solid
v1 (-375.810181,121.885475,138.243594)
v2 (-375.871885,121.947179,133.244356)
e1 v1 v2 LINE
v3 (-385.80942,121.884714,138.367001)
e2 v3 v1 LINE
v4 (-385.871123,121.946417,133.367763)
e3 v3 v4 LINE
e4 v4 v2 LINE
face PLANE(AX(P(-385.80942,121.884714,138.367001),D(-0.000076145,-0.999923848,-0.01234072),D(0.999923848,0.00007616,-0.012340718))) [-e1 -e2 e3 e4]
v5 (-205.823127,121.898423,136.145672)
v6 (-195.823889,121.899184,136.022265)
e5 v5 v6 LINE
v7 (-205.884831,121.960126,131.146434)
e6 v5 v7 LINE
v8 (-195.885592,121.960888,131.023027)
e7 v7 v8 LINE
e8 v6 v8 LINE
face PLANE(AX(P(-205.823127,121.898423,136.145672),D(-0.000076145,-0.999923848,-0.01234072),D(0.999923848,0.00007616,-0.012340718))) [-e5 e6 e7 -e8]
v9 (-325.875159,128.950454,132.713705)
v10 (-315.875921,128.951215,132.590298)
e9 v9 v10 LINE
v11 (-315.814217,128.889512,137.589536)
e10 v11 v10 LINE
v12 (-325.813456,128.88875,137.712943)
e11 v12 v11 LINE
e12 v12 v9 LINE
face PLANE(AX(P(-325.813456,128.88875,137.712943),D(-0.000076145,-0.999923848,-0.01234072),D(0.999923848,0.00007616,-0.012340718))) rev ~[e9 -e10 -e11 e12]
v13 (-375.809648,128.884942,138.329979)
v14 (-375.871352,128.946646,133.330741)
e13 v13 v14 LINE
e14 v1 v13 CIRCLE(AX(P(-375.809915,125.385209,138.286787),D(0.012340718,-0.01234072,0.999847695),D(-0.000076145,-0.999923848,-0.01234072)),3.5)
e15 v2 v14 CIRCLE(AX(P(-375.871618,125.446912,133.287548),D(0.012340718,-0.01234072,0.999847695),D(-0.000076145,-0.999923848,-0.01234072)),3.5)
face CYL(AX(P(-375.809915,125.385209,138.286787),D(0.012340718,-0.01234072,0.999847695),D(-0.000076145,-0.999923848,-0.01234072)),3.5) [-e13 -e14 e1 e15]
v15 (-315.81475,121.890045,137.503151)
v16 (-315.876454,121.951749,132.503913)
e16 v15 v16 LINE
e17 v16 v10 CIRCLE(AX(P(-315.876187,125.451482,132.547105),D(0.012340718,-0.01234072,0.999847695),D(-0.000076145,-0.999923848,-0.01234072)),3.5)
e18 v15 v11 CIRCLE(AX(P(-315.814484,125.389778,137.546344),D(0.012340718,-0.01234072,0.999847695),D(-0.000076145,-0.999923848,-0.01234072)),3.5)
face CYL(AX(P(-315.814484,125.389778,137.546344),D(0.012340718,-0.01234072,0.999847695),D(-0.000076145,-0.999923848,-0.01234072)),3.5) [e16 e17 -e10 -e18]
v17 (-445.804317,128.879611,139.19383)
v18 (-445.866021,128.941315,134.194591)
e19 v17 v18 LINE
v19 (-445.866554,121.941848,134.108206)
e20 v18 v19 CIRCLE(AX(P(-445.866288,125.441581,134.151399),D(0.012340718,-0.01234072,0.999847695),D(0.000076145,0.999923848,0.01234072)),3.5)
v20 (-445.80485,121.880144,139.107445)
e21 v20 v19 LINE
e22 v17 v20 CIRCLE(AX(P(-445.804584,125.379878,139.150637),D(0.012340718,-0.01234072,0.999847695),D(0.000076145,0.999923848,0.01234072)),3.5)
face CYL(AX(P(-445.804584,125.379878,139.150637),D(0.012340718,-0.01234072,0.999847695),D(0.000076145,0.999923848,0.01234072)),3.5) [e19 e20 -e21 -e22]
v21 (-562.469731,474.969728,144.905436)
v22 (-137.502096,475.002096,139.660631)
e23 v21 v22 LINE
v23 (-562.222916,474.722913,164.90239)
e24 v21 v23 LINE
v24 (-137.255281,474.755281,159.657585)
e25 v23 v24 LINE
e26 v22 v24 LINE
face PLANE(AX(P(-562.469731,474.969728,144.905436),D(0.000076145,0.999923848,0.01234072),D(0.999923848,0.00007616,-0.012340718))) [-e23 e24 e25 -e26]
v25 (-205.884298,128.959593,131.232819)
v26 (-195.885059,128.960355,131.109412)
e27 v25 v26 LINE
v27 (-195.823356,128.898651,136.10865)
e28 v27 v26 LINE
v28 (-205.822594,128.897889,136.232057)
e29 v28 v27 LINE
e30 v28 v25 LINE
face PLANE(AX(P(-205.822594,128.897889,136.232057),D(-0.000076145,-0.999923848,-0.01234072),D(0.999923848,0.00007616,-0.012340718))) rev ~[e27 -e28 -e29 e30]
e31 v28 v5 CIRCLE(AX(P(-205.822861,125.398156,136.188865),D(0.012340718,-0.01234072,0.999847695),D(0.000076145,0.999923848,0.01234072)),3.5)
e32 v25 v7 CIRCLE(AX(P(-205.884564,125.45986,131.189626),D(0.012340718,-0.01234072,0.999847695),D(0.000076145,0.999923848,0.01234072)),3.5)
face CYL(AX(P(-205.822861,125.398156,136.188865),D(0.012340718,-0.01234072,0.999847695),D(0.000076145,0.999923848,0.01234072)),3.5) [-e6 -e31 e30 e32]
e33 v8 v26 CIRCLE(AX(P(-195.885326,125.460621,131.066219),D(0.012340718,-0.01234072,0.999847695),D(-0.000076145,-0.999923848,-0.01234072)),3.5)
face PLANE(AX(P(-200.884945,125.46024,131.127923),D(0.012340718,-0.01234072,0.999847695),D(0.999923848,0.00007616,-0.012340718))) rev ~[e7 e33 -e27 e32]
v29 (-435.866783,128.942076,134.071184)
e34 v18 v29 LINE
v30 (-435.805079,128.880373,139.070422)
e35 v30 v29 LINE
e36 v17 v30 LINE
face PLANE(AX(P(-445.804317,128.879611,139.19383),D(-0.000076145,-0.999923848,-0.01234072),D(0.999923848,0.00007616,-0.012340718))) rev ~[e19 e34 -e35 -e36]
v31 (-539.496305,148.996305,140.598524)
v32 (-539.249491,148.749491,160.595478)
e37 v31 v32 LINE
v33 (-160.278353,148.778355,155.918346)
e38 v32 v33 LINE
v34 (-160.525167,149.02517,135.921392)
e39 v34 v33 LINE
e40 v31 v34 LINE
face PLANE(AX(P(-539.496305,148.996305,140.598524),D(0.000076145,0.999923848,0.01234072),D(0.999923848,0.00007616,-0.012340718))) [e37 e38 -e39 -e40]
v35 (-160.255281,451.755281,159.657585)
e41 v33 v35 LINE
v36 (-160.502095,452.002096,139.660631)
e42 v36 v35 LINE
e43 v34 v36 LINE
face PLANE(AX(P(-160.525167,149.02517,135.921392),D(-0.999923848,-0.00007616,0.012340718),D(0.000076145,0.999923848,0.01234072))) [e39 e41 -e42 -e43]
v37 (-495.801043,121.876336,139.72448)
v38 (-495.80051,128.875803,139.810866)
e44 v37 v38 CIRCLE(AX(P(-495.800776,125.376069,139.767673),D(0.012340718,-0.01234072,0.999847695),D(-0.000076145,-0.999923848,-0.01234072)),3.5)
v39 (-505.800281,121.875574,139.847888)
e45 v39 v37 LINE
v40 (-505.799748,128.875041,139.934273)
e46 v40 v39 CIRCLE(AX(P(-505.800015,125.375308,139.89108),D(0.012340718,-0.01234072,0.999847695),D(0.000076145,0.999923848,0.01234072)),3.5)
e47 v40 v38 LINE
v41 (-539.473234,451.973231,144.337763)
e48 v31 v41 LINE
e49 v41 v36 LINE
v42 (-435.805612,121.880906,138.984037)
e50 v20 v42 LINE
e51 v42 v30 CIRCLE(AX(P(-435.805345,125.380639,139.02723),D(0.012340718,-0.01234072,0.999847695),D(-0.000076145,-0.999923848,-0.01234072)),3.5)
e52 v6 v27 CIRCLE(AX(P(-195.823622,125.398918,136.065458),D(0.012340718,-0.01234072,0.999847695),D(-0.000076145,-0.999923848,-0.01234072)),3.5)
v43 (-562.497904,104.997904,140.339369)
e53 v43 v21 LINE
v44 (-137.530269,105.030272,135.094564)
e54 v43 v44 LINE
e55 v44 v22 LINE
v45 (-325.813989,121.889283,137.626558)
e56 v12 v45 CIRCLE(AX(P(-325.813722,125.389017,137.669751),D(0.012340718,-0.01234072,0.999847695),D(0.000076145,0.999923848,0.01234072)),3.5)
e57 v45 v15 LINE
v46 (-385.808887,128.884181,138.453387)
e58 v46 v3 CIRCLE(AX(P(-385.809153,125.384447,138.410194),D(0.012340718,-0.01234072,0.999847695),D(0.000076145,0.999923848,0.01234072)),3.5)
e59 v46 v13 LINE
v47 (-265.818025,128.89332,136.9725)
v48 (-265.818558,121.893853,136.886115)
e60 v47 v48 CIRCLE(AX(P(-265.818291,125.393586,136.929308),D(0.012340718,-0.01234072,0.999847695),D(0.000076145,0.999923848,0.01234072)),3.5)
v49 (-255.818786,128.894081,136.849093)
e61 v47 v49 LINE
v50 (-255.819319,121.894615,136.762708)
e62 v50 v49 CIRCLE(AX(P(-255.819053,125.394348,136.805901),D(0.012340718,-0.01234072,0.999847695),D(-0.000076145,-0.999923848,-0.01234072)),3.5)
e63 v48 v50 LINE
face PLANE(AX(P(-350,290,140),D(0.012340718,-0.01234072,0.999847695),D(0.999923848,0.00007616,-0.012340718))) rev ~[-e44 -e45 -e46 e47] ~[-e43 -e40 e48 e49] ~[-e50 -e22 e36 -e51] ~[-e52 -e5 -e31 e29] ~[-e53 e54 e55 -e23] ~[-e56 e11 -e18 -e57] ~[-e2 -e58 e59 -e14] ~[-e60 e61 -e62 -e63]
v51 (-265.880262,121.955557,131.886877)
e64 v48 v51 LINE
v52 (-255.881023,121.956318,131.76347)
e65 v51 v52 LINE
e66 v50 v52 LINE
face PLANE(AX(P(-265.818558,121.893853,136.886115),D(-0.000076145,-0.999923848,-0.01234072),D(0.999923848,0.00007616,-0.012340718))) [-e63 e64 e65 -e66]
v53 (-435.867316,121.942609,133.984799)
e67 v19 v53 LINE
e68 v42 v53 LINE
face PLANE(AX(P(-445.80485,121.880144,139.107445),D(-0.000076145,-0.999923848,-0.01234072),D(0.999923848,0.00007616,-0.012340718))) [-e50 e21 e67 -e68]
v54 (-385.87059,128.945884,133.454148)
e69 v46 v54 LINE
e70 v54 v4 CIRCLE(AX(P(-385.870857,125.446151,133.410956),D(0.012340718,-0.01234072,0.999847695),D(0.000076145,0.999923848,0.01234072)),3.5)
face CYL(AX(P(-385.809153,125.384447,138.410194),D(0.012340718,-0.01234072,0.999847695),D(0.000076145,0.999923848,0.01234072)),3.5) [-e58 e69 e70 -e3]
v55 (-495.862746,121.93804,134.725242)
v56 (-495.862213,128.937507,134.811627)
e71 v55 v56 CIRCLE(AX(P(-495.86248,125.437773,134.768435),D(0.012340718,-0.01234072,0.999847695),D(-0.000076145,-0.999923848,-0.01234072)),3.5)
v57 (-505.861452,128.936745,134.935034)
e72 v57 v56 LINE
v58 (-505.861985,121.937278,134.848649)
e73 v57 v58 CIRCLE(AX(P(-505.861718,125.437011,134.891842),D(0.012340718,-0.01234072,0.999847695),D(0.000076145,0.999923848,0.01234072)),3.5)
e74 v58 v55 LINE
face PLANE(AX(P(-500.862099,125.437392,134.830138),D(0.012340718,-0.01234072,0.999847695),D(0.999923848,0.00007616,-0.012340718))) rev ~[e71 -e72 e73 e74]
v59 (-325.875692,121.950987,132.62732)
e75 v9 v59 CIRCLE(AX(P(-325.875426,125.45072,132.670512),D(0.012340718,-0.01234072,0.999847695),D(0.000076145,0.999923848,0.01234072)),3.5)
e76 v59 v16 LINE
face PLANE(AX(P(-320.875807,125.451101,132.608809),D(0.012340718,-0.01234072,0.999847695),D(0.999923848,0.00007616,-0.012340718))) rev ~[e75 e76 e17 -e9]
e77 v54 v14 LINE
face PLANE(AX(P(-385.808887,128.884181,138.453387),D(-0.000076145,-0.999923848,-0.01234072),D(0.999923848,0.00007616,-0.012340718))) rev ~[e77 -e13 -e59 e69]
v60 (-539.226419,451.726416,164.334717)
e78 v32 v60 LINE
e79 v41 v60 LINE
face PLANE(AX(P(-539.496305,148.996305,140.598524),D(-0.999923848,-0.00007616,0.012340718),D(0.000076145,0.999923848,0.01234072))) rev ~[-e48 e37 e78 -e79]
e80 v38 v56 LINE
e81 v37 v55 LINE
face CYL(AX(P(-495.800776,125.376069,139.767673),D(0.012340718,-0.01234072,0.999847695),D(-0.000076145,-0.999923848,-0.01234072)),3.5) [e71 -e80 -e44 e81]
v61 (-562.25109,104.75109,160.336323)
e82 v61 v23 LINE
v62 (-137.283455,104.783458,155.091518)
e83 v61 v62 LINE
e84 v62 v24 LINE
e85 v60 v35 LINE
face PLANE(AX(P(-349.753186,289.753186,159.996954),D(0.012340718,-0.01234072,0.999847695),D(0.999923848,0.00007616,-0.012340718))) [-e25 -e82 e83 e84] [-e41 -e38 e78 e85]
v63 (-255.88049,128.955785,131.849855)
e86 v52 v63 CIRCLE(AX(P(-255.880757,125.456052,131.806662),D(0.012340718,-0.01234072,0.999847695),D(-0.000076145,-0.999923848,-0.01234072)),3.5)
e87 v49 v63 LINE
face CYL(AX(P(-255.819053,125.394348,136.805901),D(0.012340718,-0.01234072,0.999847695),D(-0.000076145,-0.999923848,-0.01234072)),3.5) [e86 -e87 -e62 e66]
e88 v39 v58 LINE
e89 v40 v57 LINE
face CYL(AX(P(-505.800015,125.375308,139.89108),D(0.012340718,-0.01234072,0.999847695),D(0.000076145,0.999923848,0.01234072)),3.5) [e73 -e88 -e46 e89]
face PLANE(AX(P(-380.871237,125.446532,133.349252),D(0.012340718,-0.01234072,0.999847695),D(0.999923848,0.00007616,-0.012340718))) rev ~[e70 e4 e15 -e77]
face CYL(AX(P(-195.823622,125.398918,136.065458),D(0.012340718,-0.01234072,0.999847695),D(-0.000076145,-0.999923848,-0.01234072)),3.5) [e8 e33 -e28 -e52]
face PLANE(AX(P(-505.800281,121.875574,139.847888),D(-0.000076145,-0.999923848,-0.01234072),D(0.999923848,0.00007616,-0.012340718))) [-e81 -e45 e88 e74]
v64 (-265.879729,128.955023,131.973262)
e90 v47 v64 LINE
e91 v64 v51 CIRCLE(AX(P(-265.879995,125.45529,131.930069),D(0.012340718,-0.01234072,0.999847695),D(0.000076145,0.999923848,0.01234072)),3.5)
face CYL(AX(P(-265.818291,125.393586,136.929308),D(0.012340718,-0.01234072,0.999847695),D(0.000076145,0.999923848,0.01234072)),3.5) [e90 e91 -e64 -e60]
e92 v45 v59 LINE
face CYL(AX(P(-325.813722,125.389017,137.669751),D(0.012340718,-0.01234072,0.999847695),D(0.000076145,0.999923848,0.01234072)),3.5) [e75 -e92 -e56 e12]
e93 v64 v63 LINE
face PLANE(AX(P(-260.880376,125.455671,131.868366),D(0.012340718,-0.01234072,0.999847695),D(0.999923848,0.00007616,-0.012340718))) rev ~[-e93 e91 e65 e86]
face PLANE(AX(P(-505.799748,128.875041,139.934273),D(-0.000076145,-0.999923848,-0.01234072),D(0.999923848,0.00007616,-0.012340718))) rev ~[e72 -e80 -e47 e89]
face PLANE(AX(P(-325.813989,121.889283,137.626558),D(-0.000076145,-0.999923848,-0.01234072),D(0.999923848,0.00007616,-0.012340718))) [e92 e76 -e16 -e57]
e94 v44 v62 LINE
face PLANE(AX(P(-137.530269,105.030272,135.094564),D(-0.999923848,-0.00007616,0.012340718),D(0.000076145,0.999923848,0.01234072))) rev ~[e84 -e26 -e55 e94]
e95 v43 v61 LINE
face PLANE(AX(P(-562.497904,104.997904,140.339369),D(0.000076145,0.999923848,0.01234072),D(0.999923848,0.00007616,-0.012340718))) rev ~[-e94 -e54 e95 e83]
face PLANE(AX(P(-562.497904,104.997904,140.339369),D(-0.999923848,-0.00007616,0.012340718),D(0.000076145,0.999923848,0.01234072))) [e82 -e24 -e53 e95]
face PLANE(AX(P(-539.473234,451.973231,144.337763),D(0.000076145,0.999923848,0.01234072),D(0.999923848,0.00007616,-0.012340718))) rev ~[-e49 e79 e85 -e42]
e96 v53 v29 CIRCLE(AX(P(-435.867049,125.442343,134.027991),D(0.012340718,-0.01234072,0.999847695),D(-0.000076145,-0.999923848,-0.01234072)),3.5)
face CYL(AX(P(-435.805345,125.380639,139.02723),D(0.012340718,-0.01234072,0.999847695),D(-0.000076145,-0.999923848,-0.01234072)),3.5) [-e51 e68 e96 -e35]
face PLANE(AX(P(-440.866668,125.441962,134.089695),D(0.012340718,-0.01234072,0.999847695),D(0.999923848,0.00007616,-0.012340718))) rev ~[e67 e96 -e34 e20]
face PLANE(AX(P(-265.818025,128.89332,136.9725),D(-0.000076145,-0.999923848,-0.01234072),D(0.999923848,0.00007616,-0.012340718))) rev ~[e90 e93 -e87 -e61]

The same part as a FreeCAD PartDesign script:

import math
import FreeCAD as App
import Part
import Sketcher

V = App.Vector


def add_polygon(sketch, points):
    """Adds a closed chain of lines whose ends are joined by coincident constraints."""
    first, n = sketch.GeometryCount, len(points)
    for a, b in zip(points, points[1:] + points[:1]):
        sketch.addGeometry(Part.LineSegment(App.Vector(*a, 0), App.Vector(*b, 0)), False)
    for i in range(n):
        sketch.addConstraint(Sketcher.Constraint("Coincident", first + i, 2, first + (i + 1) % n, 1))

doc = App.newDocument("Part")
body = doc.addObject("PartDesign::Body", "Body")

# Sketch on XY plane
sketch1 = doc.addObject("Sketcher::SketchObject", "Sketch")
body.addObject(sketch1)
sketch1.AttachmentSupport = (doc.XY_Plane, [""])
sketch1.MapMode = "FlatFace"
add_polygon(sketch1, [(-212.5, 185), (-212.5, -185), (212.5, -185), (212.5, 185)])  # lines 0-3
add_polygon(sketch1, [(189.5, -141), (-189.5, -141), (-189.5, 162), (189.5, 162)])  # lines 4-7
sketch1.addConstraint([
    Sketcher.Constraint("Vertical", 0),
    Sketcher.Constraint("Horizontal", 1),
    Sketcher.Constraint("Vertical", 2),
    Sketcher.Constraint("Horizontal", 3),
    Sketcher.Constraint("Horizontal", 4),
    Sketcher.Constraint("Vertical", 5),
    Sketcher.Constraint("Horizontal", 6),
    Sketcher.Constraint("Vertical", 7),
    Sketcher.Constraint("Symmetric", 0, 2, 2, 2, -1, 1),
    Sketcher.Constraint("DistanceX", 1, 1, 1, 2, 425.0),
    Sketcher.Constraint("DistanceX", 4, 2, 4, 1, 379.0),
    Sketcher.Constraint("DistanceY", 0, 2, 0, 1, 370.0),
    Sketcher.Constraint("DistanceY", 5, 1, 5, 2, 303.0),
    Sketcher.Constraint("DistanceY", 4, 2, -1, 1, 141.0),
    Sketcher.Constraint("DistanceX", 0, 2, 4, 2, 23.0),
])
pad1 = doc.addObject("PartDesign::Pad", "Pad")
body.addObject(pad1)
pad1.Profile = sketch1
pad1.Length = 20

# Sketch on XY plane
sketch2 = doc.addObject("Sketcher::SketchObject", "Sketch001")
body.addObject(sketch2)
sketch2.AttachmentSupport = (doc.XY_Plane, [""])
sketch2.MapMode = "FlatFace"
sketch2.addGeometry([
    Part.ArcOfCircle(Part.Circle(V(-155.799344, -164.625363, 0), V(0, 0, 1), 3.5), math.radians(90), math.radians(270)),
    Part.LineSegment(V(-155.799344, -168.125363, 0), V(-145.799344, -168.125363, 0)),
    Part.ArcOfCircle(Part.Circle(V(-145.799344, -164.625363, 0), V(0, 0, 1), 3.5), math.radians(-90), math.radians(90)),
    Part.LineSegment(V(-145.799344, -161.125363, 0), V(-155.799344, -161.125363, 0)),
], False)
sketch2.addConstraint([
    Sketcher.Constraint("Tangent", 0, 2, 1, 1),
    Sketcher.Constraint("Tangent", 1, 2, 2, 1),
    Sketcher.Constraint("Tangent", 2, 2, 3, 1),
    Sketcher.Constraint("Tangent", 3, 2, 0, 1),
    Sketcher.Constraint("Horizontal", 1),
    Sketcher.Constraint("Horizontal", 3),
    Sketcher.Constraint("Radius", 0, 3.5),
    Sketcher.Constraint("DistanceX", 1, 1, 1, 2, 10.0),
    Sketcher.Constraint("DistanceX", 0, 3, -1, 1, 155.799344),
    Sketcher.Constraint("DistanceY", 0, 3, -1, 1, 164.625363),
])
pad2 = doc.addObject("PartDesign::Pad", "Pad001")
body.addObject(pad2)
pad2.Profile = sketch2
pad2.Length = 5
pad2.Reversed = True
doc.recompute()

linearpattern = doc.addObject("PartDesign::LinearPattern", "LinearPattern")
body.addObject(linearpattern)
linearpattern.Originals = [pad2]
linearpattern.Direction = (doc.X_Axis, [""])
linearpattern.Mode = "offset"
linearpattern.Offset = 60
linearpattern.Occurrences = 6
body.Tip = linearpattern
body2 = doc.addObject("PartDesign::Body", "Body001")
doc.recompute()

body.Placement = App.Placement(V(0, 0, 0), App.Rotation(V(1, 0, 0), 0.707143))
boolean = doc.addObject("PartDesign::Boolean", "Boolean")
body2.addObject(boolean)
boolean.Type = "Fuse"
boolean.addObjects([body])
body3 = doc.addObject("PartDesign::Body", "Body002")
doc.recompute()

body2.Placement = App.Placement(V(0, 0, 0), App.Rotation(V(0, 1, 0), 0.707089))
boolean2 = doc.addObject("PartDesign::Boolean", "Boolean001")
body3.addObject(boolean2)
boolean2.Type = "Fuse"
boolean2.addObjects([body2])
body4 = doc.addObject("PartDesign::Body", "Body003")
doc.recompute()

body3.Placement = App.Placement(V(-350, 290, 140), App.Rotation(V(0, 0, 1), 0.004364))
boolean3 = doc.addObject("PartDesign::Boolean", "Boolean002")
body4.addObject(boolean3)
boolean3.Type = "Fuse"
boolean3.addObjects([body3])

doc.recompute()
